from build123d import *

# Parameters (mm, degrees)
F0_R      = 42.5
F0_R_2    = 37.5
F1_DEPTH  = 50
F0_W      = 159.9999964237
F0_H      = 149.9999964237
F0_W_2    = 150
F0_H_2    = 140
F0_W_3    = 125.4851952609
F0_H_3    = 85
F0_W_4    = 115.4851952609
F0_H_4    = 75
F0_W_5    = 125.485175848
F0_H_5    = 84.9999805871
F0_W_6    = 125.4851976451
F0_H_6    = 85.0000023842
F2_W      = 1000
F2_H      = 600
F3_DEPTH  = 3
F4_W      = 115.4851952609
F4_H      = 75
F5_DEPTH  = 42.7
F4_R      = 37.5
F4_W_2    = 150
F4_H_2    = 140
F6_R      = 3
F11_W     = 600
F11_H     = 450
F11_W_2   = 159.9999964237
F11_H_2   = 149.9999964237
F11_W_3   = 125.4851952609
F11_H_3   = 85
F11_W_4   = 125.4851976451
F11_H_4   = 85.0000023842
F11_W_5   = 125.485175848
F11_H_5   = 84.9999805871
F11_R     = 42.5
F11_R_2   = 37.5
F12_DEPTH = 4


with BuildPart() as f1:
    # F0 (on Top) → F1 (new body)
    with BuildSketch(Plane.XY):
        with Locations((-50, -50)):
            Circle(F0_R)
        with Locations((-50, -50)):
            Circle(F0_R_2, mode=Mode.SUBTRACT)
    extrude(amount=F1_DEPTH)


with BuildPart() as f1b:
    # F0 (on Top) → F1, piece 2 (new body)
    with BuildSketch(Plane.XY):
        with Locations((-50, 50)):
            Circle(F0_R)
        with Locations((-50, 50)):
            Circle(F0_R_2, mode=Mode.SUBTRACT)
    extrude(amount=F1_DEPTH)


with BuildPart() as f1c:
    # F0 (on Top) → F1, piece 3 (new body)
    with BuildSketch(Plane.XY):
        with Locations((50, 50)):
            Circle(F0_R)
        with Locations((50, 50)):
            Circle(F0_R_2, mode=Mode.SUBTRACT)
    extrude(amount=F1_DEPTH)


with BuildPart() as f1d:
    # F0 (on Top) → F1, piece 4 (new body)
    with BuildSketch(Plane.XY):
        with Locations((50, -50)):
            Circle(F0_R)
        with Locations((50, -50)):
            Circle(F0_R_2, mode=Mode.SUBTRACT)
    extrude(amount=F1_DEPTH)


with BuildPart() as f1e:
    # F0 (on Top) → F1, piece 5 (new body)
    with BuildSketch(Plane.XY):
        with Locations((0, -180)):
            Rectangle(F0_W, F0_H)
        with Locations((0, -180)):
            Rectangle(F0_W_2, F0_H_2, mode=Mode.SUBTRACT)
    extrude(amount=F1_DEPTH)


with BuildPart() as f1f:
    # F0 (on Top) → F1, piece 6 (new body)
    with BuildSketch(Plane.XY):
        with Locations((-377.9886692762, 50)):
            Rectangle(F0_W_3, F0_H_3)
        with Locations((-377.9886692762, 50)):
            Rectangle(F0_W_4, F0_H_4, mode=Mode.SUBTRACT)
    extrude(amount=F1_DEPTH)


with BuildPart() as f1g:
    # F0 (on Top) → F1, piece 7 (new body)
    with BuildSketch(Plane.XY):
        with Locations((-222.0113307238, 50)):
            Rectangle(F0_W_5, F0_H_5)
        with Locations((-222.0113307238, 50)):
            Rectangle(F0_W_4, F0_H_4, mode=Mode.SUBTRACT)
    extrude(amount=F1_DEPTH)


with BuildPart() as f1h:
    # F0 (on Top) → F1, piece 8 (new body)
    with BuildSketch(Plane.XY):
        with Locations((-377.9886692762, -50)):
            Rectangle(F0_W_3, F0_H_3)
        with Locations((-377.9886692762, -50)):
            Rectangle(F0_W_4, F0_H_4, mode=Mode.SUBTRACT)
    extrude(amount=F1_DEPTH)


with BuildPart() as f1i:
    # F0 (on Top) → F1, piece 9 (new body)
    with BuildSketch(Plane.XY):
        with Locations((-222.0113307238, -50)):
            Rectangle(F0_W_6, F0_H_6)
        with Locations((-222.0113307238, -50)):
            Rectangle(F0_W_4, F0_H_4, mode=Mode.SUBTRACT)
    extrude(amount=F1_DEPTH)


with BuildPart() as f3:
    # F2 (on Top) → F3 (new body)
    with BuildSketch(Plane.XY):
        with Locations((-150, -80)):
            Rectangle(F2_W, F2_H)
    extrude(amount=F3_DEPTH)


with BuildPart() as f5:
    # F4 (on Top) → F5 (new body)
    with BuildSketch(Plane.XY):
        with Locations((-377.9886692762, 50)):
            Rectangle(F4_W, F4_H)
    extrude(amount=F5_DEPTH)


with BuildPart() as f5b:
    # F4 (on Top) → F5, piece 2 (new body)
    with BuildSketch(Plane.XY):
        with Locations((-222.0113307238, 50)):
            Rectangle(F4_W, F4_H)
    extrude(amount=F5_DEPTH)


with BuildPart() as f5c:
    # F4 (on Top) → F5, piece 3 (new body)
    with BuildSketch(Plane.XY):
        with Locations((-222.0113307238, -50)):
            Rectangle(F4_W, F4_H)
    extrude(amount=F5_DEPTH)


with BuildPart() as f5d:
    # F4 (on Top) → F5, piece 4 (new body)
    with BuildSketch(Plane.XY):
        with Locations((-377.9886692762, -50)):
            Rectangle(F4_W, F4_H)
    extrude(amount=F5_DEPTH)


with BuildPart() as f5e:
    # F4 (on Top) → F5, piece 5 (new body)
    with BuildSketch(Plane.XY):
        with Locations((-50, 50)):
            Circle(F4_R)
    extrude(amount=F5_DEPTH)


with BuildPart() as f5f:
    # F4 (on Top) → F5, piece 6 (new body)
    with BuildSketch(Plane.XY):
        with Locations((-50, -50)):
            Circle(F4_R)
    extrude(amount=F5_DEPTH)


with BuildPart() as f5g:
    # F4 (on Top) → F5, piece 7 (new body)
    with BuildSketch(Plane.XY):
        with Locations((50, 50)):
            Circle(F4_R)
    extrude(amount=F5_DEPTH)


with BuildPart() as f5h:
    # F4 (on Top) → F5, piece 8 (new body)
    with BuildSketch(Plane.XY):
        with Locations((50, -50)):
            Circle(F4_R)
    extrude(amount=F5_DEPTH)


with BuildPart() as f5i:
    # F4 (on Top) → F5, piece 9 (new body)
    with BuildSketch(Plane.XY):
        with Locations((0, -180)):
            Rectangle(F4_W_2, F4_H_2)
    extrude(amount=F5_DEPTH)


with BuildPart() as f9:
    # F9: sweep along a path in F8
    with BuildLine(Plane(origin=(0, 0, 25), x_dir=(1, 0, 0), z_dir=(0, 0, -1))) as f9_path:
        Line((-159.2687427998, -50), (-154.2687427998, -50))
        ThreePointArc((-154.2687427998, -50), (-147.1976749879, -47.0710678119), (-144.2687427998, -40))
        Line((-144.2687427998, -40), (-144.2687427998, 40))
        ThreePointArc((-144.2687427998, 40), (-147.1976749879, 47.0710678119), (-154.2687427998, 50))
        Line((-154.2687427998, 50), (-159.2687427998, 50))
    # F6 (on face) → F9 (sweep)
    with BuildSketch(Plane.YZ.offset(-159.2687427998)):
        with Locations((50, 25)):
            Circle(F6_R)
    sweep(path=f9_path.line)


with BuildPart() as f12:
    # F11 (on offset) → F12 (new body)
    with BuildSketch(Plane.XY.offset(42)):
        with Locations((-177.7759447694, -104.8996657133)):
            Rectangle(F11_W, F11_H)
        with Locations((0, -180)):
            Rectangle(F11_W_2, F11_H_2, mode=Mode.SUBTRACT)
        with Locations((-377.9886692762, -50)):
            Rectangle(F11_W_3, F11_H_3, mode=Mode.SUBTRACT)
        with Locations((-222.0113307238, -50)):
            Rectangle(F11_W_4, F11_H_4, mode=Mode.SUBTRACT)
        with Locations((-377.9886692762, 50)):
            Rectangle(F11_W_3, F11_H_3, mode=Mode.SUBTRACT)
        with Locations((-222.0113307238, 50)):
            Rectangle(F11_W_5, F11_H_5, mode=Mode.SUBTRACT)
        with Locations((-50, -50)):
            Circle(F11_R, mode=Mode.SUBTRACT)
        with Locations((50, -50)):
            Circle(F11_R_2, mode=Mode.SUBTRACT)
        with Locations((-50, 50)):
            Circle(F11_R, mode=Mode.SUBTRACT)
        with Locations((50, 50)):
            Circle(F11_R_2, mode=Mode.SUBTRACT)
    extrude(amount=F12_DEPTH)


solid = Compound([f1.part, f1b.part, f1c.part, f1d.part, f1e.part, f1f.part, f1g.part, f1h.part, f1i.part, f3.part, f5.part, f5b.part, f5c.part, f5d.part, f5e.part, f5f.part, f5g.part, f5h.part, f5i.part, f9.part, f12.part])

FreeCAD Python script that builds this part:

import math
import FreeCAD as App
import Part
import Sketcher
from FreeCAD import Vector
Q = App.Units.Quantity

doc = App.newDocument("Part")
body = doc.addObject("PartDesign::Body", "Body")

# Sketch on XY plane
sketch1 = doc.addObject("Sketcher::SketchObject", "Sketch")
body.addObject(sketch1)
sketch1.AttachmentSupport = (doc.XY_Plane, [""])
sketch1.MapMode = "FlatFace"
sketch1.addGeometry(Part.Circle(Vector(-50, -50, 0), Vector(0, 0, 1), 42.5), False)
sketch1.addGeometry(Part.Circle(Vector(-50, -50, 0), Vector(0, 0, 1), 37.5), False)
sketch1.addConstraint(Sketcher.Constraint("Coincident", 1, 3, 0, 3))
sketch1.addConstraint(Sketcher.Constraint("Diameter", 0, Q("85 mm")))
sketch1.addConstraint(Sketcher.Constraint("Diameter", 1, Q("75 mm")))
sketch1.addConstraint(Sketcher.Constraint("DistanceX", 0, 3, -1, 1, Q("50 mm")))
sketch1.addConstraint(Sketcher.Constraint("DistanceY", 0, 3, -1, 1, Q("50 mm")))
pad1 = doc.addObject("PartDesign::Pad", "Pad")
body.addObject(pad1)
pad1.Profile = sketch1
pad1.Length = 50
body2 = doc.addObject("PartDesign::Body", "Body001")

# Sketch on XY plane
sketch2 = doc.addObject("Sketcher::SketchObject", "Sketch001")
body2.addObject(sketch2)
sketch2.AttachmentSupport = (doc.getObject("XY_Plane001"), [""])
sketch2.MapMode = "FlatFace"
sketch2.addGeometry(Part.Circle(Vector(-50, 50, 0), Vector(0, 0, 1), 42.5), False)
sketch2.addGeometry(Part.Circle(Vector(-50, 50, 0), Vector(0, 0, 1), 37.5), False)
sketch2.addConstraint(Sketcher.Constraint("Coincident", 1, 3, 0, 3))
sketch2.addConstraint(Sketcher.Constraint("Diameter", 0, Q("85 mm")))
sketch2.addConstraint(Sketcher.Constraint("Diameter", 1, Q("75 mm")))
sketch2.addConstraint(Sketcher.Constraint("DistanceX", 0, 3, -1, 1, Q("50 mm")))
sketch2.addConstraint(Sketcher.Constraint("DistanceY", -1, 1, 0, 3, Q("50 mm")))
pad2 = doc.addObject("PartDesign::Pad", "Pad001")
body2.addObject(pad2)
pad2.Profile = sketch2
pad2.Length = 50
body3 = doc.addObject("PartDesign::Body", "Body002")

# Sketch on XY plane
sketch3 = doc.addObject("Sketcher::SketchObject", "Sketch002")
body3.addObject(sketch3)
sketch3.AttachmentSupport = (doc.getObject("XY_Plane002"), [""])
sketch3.MapMode = "FlatFace"
sketch3.addGeometry(Part.Circle(Vector(50, 50, 0), Vector(0, 0, 1), 42.5), False)
sketch3.addGeometry(Part.Circle(Vector(50, 50, 0), Vector(0, 0, 1), 37.5), False)
sketch3.addConstraint(Sketcher.Constraint("Coincident", 1, 3, 0, 3))
sketch3.addConstraint(Sketcher.Constraint("Diameter", 0, Q("85 mm")))
sketch3.addConstraint(Sketcher.Constraint("Diameter", 1, Q("75 mm")))
sketch3.addConstraint(Sketcher.Constraint("DistanceX", -1, 1, 0, 3, Q("50 mm")))
sketch3.addConstraint(Sketcher.Constraint("DistanceY", -1, 1, 0, 3, Q("50 mm")))
pad3 = doc.addObject("PartDesign::Pad", "Pad002")
body3.addObject(pad3)
pad3.Profile = sketch3
pad3.Length = 50
body4 = doc.addObject("PartDesign::Body", "Body003")

# Sketch on XY plane
sketch4 = doc.addObject("Sketcher::SketchObject", "Sketch003")
body4.addObject(sketch4)
sketch4.AttachmentSupport = (doc.getObject("XY_Plane003"), [""])
sketch4.MapMode = "FlatFace"
sketch4.addGeometry(Part.Circle(Vector(50, -50, 0), Vector(0, 0, 1), 42.5), False)
sketch4.addGeometry(Part.Circle(Vector(50, -50, 0), Vector(0, 0, 1), 37.5), False)
sketch4.addConstraint(Sketcher.Constraint("Coincident", 1, 3, 0, 3))
sketch4.addConstraint(Sketcher.Constraint("Diameter", 0, Q("85 mm")))
sketch4.addConstraint(Sketcher.Constraint("Diameter", 1, Q("75 mm")))
sketch4.addConstraint(Sketcher.Constraint("DistanceX", -1, 1, 0, 3, Q("50 mm")))
sketch4.addConstraint(Sketcher.Constraint("DistanceY", 0, 3, -1, 1, Q("50 mm")))
pad4 = doc.addObject("PartDesign::Pad", "Pad003")
body4.addObject(pad4)
pad4.Profile = sketch4
pad4.Length = 50
body5 = doc.addObject("PartDesign::Body", "Body004")

# Sketch on XY plane
sketch5 = doc.addObject("Sketcher::SketchObject", "Sketch004")
body5.addObject(sketch5)
sketch5.AttachmentSupport = (doc.getObject("XY_Plane004"), [""])
sketch5.MapMode = "FlatFace"
sketch5.addGeometry(Part.LineSegment(Vector(-79.999998, -105.000002, 0), Vector(-79.999998, -254.999998, 0)), False)
sketch5.addGeometry(Part.LineSegment(Vector(-79.999998, -254.999998, 0), Vector(79.999998, -254.999998, 0)), False)
sketch5.addGeometry(Part.LineSegment(Vector(79.999998, -254.999998, 0), Vector(79.999998, -105.000002, 0)), False)
sketch5.addGeometry(Part.LineSegment(Vector(79.999998, -105.000002, 0), Vector(-79.999998, -105.000002, 0)), False)
sketch5.addGeometry(Part.LineSegment(Vector(75, -250, 0), Vector(-75, -250, 0)), False)
sketch5.addGeometry(Part.LineSegment(Vector(-75, -250, 0), Vector(-75, -110, 0)), False)
sketch5.addGeometry(Part.LineSegment(Vector(-75, -110, 0), Vector(75, -110, 0)), False)
sketch5.addGeometry(Part.LineSegment(Vector(75, -110, 0), Vector(75, -250, 0)), False)
sketch5.addConstraint(Sketcher.Constraint("Coincident", 0, 2, 1, 1))
sketch5.addConstraint(Sketcher.Constraint("Coincident", 1, 2, 2, 1))
sketch5.addConstraint(Sketcher.Constraint("Coincident", 2, 2, 3, 1))
sketch5.addConstraint(Sketcher.Constraint("Coincident", 3, 2, 0, 1))
sketch5.addConstraint(Sketcher.Constraint("Coincident", 4, 2, 5, 1))
sketch5.addConstraint(Sketcher.Constraint("Coincident", 5, 2, 6, 1))
sketch5.addConstraint(Sketcher.Constraint("Coincident", 6, 2, 7, 1))
sketch5.addConstraint(Sketcher.Constraint("Coincident", 7, 2, 4, 1))
sketch5.addConstraint(Sketcher.Constraint("Vertical", 0))
sketch5.addConstraint(Sketcher.Constraint("Horizontal", 1))
sketch5.addConstraint(Sketcher.Constraint("Vertical", 2))
sketch5.addConstraint(Sketcher.Constraint("Horizontal", 3))
sketch5.addConstraint(Sketcher.Constraint("Horizontal", 4))
sketch5.addConstraint(Sketcher.Constraint("Vertical", 5))
sketch5.addConstraint(Sketcher.Constraint("Horizontal", 6))
sketch5.addConstraint(Sketcher.Constraint("Vertical", 7))
sketch5.addConstraint(Sketcher.Constraint("DistanceX", 4, 2, 4, 1, Q("150 mm")))
sketch5.addConstraint(Sketcher.Constraint("DistanceY", 5, 1, 5, 2, Q("140 mm")))
sketch5.addConstraint(Sketcher.Constraint("DistanceX", 0, 2, -1, 1, Q("79.999998 mm")))
sketch5.addConstraint(Sketcher.Constraint("DistanceY", 0, 2, -1, 1, Q("254.999998 mm")))
sketch5.addConstraint(Sketcher.Constraint("DistanceX", -1, 1, 1, 2, Q("79.999998 mm")))
sketch5.addConstraint(Sketcher.Constraint("DistanceY", 2, 2, -1, 1, Q("105.000002 mm")))
sketch5.addConstraint(Sketcher.Constraint("DistanceX", 4, 2, -1, 1, Q("75 mm")))
sketch5.addConstraint(Sketcher.Constraint("DistanceY", 4, 2, -1, 1, Q("250 mm")))
pad5 = doc.addObject("PartDesign::Pad", "Pad004")
body5.addObject(pad5)
pad5.Profile = sketch5
pad5.Length = 50
body6 = doc.addObject("PartDesign::Body", "Body005")

# Sketch on XY plane
sketch6 = doc.addObject("Sketcher::SketchObject", "Sketch005")
body6.addObject(sketch6)
sketch6.AttachmentSupport = (doc.getObject("XY_Plane005"), [""])
sketch6.MapMode = "FlatFace"
sketch6.addGeometry(Part.LineSegment(Vector(-440.731267, 92.5, 0), Vector(-440.731267, 7.5, 0)), False)
sketch6.addGeometry(Part.LineSegment(Vector(-440.731267, 7.5, 0), Vector(-315.246072, 7.5, 0)), False)
sketch6.addGeometry(Part.LineSegment(Vector(-315.246072, 7.5, 0), Vector(-315.246072, 92.5, 0)), False)
sketch6.addGeometry(Part.LineSegment(Vector(-315.246072, 92.5, 0), Vector(-440.731267, 92.5, 0)), False)
sketch6.addGeometry(Part.LineSegment(Vector(-320.246072, 12.5, 0), Vector(-435.731267, 12.5, 0)), False)
sketch6.addGeometry(Part.LineSegment(Vector(-435.731267, 12.5, 0), Vector(-435.731267, 87.5, 0)), False)
sketch6.addGeometry(Part.LineSegment(Vector(-435.731267, 87.5, 0), Vector(-320.246072, 87.5, 0)), False)
sketch6.addGeometry(Part.LineSegment(Vector(-320.246072, 87.5, 0), Vector(-320.246072, 12.5, 0)), False)
sketch6.addConstraint(Sketcher.Constraint("Coincident", 0, 2, 1, 1))
sketch6.addConstraint(Sketcher.Constraint("Coincident", 1, 2, 2, 1))
sketch6.addConstraint(Sketcher.Constraint("Coincident", 2, 2, 3, 1))
sketch6.addConstraint(Sketcher.Constraint("Coincident", 3, 2, 0, 1))
sketch6.addConstraint(Sketcher.Constraint("Coincident", 4, 2, 5, 1))
sketch6.addConstraint(Sketcher.Constraint("Coincident", 5, 2, 6, 1))
sketch6.addConstraint(Sketcher.Constraint("Coincident", 6, 2, 7, 1))
sketch6.addConstraint(Sketcher.Constraint("Coincident", 7, 2, 4, 1))
sketch6.addConstraint(Sketcher.Constraint("Vertical", 0))
sketch6.addConstraint(Sketcher.Constraint("Horizontal", 1))
sketch6.addConstraint(Sketcher.Constraint("Vertical", 2))
sketch6.addConstraint(Sketcher.Constraint("Horizontal", 3))
sketch6.addConstraint(Sketcher.Constraint("Horizontal", 4))
sketch6.addConstraint(Sketcher.Constraint("Vertical", 5))
sketch6.addConstraint(Sketcher.Constraint("Horizontal", 6))
sketch6.addConstraint(Sketcher.Constraint("Vertical", 7))
sketch6.addConstraint(Sketcher.Constraint("DistanceY", 0, 2, 0, 1, Q("85 mm")))
sketch6.addConstraint(Sketcher.Constraint("DistanceY", 5, 1, 5, 2, Q("75 mm")))
sketch6.addConstraint(Sketcher.Constraint("DistanceX", 0, 2, 4, 2, Q("5 mm")))
sketch6.addConstraint(Sketcher.Constraint("DistanceY", 0, 2, 4, 2, Q("5 mm")))
sketch6.addConstraint(Sketcher.Constraint("DistanceX", 6, 2, 2, 2, Q("5 mm")))
sketch6.addConstraint(Sketcher.Constraint("DistanceY", -1, 1, 0, 2, Q("7.5 mm")))
sketch6.addConstraint(Sketcher.Constraint("DistanceX", 1, 1, 1, 2, Q("125.485195 mm")))
sketch6.addConstraint(Sketcher.Constraint("DistanceX", 1, 2, -1, 1, Q("315.246072 mm")))
pad6 = doc.addObject("PartDesign::Pad", "Pad005")
body6.addObject(pad6)
pad6.Profile = sketch6
pad6.Length = 50
body7 = doc.addObject("PartDesign::Body", "Body006")

# Sketch on XY plane
sketch7 = doc.addObject("Sketcher::SketchObject", "Sketch006")
body7.addObject(sketch7)
sketch7.AttachmentSupport = (doc.getObject("XY_Plane006"), [""])
sketch7.MapMode = "FlatFace"
sketch7.addGeometry(Part.LineSegment(Vector(-284.753919, 92.49999, 0), Vector(-284.753919, 7.50001, 0)), False)
sketch7.addGeometry(Part.LineSegment(Vector(-284.753919, 7.50001, 0), Vector(-159.268743, 7.50001, 0)), False)
sketch7.addGeometry(Part.LineSegment(Vector(-159.268743, 7.50001, 0), Vector(-159.268743, 92.49999, 0)), False)
sketch7.addGeometry(Part.LineSegment(Vector(-159.268743, 92.49999, 0), Vector(-284.753919, 92.49999, 0)), False)
sketch7.addGeometry(Part.LineSegment(Vector(-164.268733, 12.5, 0), Vector(-279.753928, 12.5, 0)), False)
sketch7.addGeometry(Part.LineSegment(Vector(-279.753928, 12.5, 0), Vector(-279.753928, 87.5, 0)), False)
sketch7.addGeometry(Part.LineSegment(Vector(-279.753928, 87.5, 0), Vector(-164.268733, 87.5, 0)), False)
sketch7.addGeometry(Part.LineSegment(Vector(-164.268733, 87.5, 0), Vector(-164.268733, 12.5, 0)), False)
sketch7.addConstraint(Sketcher.Constraint("Coincident", 0, 2, 1, 1))
sketch7.addConstraint(Sketcher.Constraint("Coincident", 1, 2, 2, 1))
sketch7.addConstraint(Sketcher.Constraint("Coincident", 2, 2, 3, 1))
sketch7.addConstraint(Sketcher.Constraint("Coincident", 3, 2, 0, 1))
sketch7.addConstraint(Sketcher.Constraint("Coincident", 4, 2, 5, 1))
sketch7.addConstraint(Sketcher.Constraint("Coincident", 5, 2, 6, 1))
sketch7.addConstraint(Sketcher.Constraint("Coincident", 6, 2, 7, 1))
sketch7.addConstraint(Sketcher.Constraint("Coincident", 7, 2, 4, 1))
sketch7.addConstraint(Sketcher.Constraint("Vertical", 0))
sketch7.addConstraint(Sketcher.Constraint("Horizontal", 1))
sketch7.addConstraint(Sketcher.Constraint("Vertical", 2))
sketch7.addConstraint(Sketcher.Constraint("Horizontal", 3))
sketch7.addConstraint(Sketcher.Constraint("Horizontal", 4))
sketch7.addConstraint(Sketcher.Constraint("Vertical", 5))
sketch7.addConstraint(Sketcher.Constraint("Horizontal", 6))
sketch7.addConstraint(Sketcher.Constraint("Vertical", 7))
sketch7.addConstraint(Sketcher.Constraint("DistanceY", 5, 1, 5, 2, Q("75 mm")))
sketch7.addConstraint(Sketcher.Constraint("DistanceY", -1, 1, 4, 2, Q("12.5 mm")))
sketch7.addConstraint(Sketcher.Constraint("DistanceY", 0, 2, 0, 1, Q("84.999981 mm")))
sketch7.addConstraint(Sketcher.Constraint("DistanceX", 1, 1, 1, 2, Q("125.485176 mm")))
sketch7.addConstraint(Sketcher.Constraint("DistanceX", 4, 2, 4, 1, Q("115.485195 mm")))
sketch7.addConstraint(Sketcher.Constraint("DistanceX", 0, 2, -1, 1, Q("284.753919 mm")))
sketch7.addConstraint(Sketcher.Constraint("DistanceY", -1, 1, 0, 2, Q("7.50001 mm")))
sketch7.addConstraint(Sketcher.Constraint("DistanceX", 4, 2, -1, 1, Q("279.753928 mm")))
pad7 = doc.addObject("PartDesign::Pad", "Pad006")
body7.addObject(pad7)
pad7.Profile = sketch7
pad7.Length = 50
body8 = doc.addObject("PartDesign::Body", "Body007")

# Sketch on XY plane
sketch8 = doc.addObject("Sketcher::SketchObject", "Sketch007")
body8.addObject(sketch8)
sketch8.AttachmentSupport = (doc.getObject("XY_Plane007"), [""])
sketch8.MapMode = "FlatFace"
sketch8.addGeometry(Part.LineSegment(Vector(-440.731267, -7.5, 0), Vector(-440.731267, -92.5, 0)), False)
sketch8.addGeometry(Part.LineSegment(Vector(-440.731267, -92.5, 0), Vector(-315.246072, -92.5, 0)), False)
sketch8.addGeometry(Part.LineSegment(Vector(-315.246072, -92.5, 0), Vector(-315.246072, -7.5, 0)), False)
sketch8.addGeometry(Part.LineSegment(Vector(-315.246072, -7.5, 0), Vector(-440.731267, -7.5, 0)), False)
sketch8.addGeometry(Part.LineSegment(Vector(-320.246072, -87.5, 0), Vector(-435.731267, -87.5, 0)), False)
sketch8.addGeometry(Part.LineSegment(Vector(-435.731267, -87.5, 0), Vector(-435.731267, -12.5, 0)), False)
sketch8.addGeometry(Part.LineSegment(Vector(-435.731267, -12.5, 0), Vector(-320.246072, -12.5, 0)), False)
sketch8.addGeometry(Part.LineSegment(Vector(-320.246072, -12.5, 0), Vector(-320.246072, -87.5, 0)), False)
sketch8.addConstraint(Sketcher.Constraint("Coincident", 0, 2, 1, 1))
sketch8.addConstraint(Sketcher.Constraint("Coincident", 1, 2, 2, 1))
sketch8.addConstraint(Sketcher.Constraint("Coincident", 2, 2, 3, 1))
sketch8.addConstraint(Sketcher.Constraint("Coincident", 3, 2, 0, 1))
sketch8.addConstraint(Sketcher.Constraint("Coincident", 4, 2, 5, 1))
sketch8.addConstraint(Sketcher.Constraint("Coincident", 5, 2, 6, 1))
sketch8.addConstraint(Sketcher.Constraint("Coincident", 6, 2, 7, 1))
sketch8.addConstraint(Sketcher.Constraint("Coincident", 7, 2, 4, 1))
sketch8.addConstraint(Sketcher.Constraint("Vertical", 0))
sketch8.addConstraint(Sketcher.Constraint("Horizontal", 1))
sketch8.addConstraint(Sketcher.Constraint("Vertical", 2))
sketch8.addConstraint(Sketcher.Constraint("Horizontal", 3))
sketch8.addConstraint(Sketcher.Constraint("Horizontal", 4))
sketch8.addConstraint(Sketcher.Constraint("Vertical", 5))
sketch8.addConstraint(Sketcher.Constraint("Horizontal", 6))
sketch8.addConstraint(Sketcher.Constraint("Vertical", 7))
sketch8.addConstraint(Sketcher.Constraint("DistanceY", 0, 2, 0, 1, Q("85 mm")))
sketch8.addConstraint(Sketcher.Constraint("DistanceY", 5, 1, 5, 2, Q("75 mm")))
sketch8.addConstraint(Sketcher.Constraint("DistanceX", 0, 2, 4, 2, Q("5 mm")))
sketch8.addConstraint(Sketcher.Constraint("DistanceY", 0, 2, 4, 2, Q("5 mm")))
sketch8.addConstraint(Sketcher.Constraint("DistanceX", 6, 2, 2, 2, Q("5 mm")))
sketch8.addConstraint(Sketcher.Constraint("DistanceY", 0, 2, -1, 1, Q("92.5 mm")))
sketch8.addConstraint(Sketcher.Constraint("DistanceX", 1, 1, 1, 2, Q("125.485195 mm")))
sketch8.addConstraint(Sketcher.Constraint("DistanceX", 1, 2, -1, 1, Q("315.246072 mm")))
pad8 = doc.addObject("PartDesign::Pad", "Pad007")
body8.addObject(pad8)
pad8.Profile = sketch8
pad8.Length = 50
body9 = doc.addObject("PartDesign::Body", "Body008")

# Sketch on XY plane
sketch9 = doc.addObject("Sketcher::SketchObject", "Sketch008")
body9.addObject(sketch9)
sketch9.AttachmentSupport = (doc.getObject("XY_Plane008"), [""])
sketch9.MapMode = "FlatFace"
sketch9.addGeometry(Part.LineSegment(Vector(-284.75393, -7.499999, 0), Vector(-284.75393, -92.500001, 0)), False)
sketch9.addGeometry(Part.LineSegment(Vector(-284.75393, -92.500001, 0), Vector(-159.268732, -92.500001, 0)), False)
sketch9.addGeometry(Part.LineSegment(Vector(-159.268732, -92.500001, 0), Vector(-159.268732, -7.499999, 0)), False)
sketch9.addGeometry(Part.LineSegment(Vector(-159.268732, -7.499999, 0), Vector(-284.75393, -7.499999, 0)), False)
sketch9.addGeometry(Part.LineSegment(Vector(-164.268733, -87.5, 0), Vector(-279.753928, -87.5, 0)), False)
sketch9.addGeometry(Part.LineSegment(Vector(-279.753928, -87.5, 0), Vector(-279.753928, -12.5, 0)), False)
sketch9.addGeometry(Part.LineSegment(Vector(-279.753928, -12.5, 0), Vector(-164.268733, -12.5, 0)), False)
sketch9.addGeometry(Part.LineSegment(Vector(-164.268733, -12.5, 0), Vector(-164.268733, -87.5, 0)), False)
sketch9.addConstraint(Sketcher.Constraint("Coincident", 0, 2, 1, 1))
sketch9.addConstraint(Sketcher.Constraint("Coincident", 1, 2, 2, 1))
sketch9.addConstraint(Sketcher.Constraint("Coincident", 2, 2, 3, 1))
sketch9.addConstraint(Sketcher.Constraint("Coincident", 3, 2, 0, 1))
sketch9.addConstraint(Sketcher.Constraint("Coincident", 4, 2, 5, 1))
sketch9.addConstraint(Sketcher.Constraint("Coincident", 5, 2, 6, 1))
sketch9.addConstraint(Sketcher.Constraint("Coincident", 6, 2, 7, 1))
sketch9.addConstraint(Sketcher.Constraint("Coincident", 7, 2, 4, 1))
sketch9.addConstraint(Sketcher.Constraint("Vertical", 0))
sketch9.addConstraint(Sketcher.Constraint("Horizontal", 1))
sketch9.addConstraint(Sketcher.Constraint("Vertical", 2))
sketch9.addConstraint(Sketcher.Constraint("Horizontal", 3))
sketch9.addConstraint(Sketcher.Constraint("Horizontal", 4))
sketch9.addConstraint(Sketcher.Constraint("Vertical", 5))
sketch9.addConstraint(Sketcher.Constraint("Horizontal", 6))
sketch9.addConstraint(Sketcher.Constraint("Vertical", 7))
sketch9.addConstraint(Sketcher.Constraint("DistanceY", 5, 1, 5, 2, Q("75 mm")))
sketch9.addConstraint(Sketcher.Constraint("DistanceX", 0, 2, 4, 2, Q("5.000001 mm")))
sketch9.addConstraint(Sketcher.Constraint("DistanceY", 0, 2, 4, 2, Q("5.000001 mm")))
sketch9.addConstraint(Sketcher.Constraint("DistanceY", 4, 2, 3, 2, Q("80.000001 mm")))
sketch9.addConstraint(Sketcher.Constraint("DistanceX", 6, 2, 2, 2, Q("5.000001 mm")))
sketch9.addConstraint(Sketcher.Constraint("DistanceY", 0, 2, -1, 1, Q("92.500001 mm")))
sketch9.addConstraint(Sketcher.Constraint("DistanceX", 1, 1, 1, 2, Q("125.485198 mm")))
sketch9.addConstraint(Sketcher.Constraint("DistanceX", 0, 2, -1, 1, Q("284.75393 mm")))
pad9 = doc.addObject("PartDesign::Pad", "Pad008")
body9.addObject(pad9)
pad9.Profile = sketch9
pad9.Length = 50
body10 = doc.addObject("PartDesign::Body", "Body009")

# Sketch on XY plane
sketch10 = doc.addObject("Sketcher::SketchObject", "Sketch009")
body10.addObject(sketch10)
sketch10.AttachmentSupport = (doc.getObject("XY_Plane009"), [""])
sketch10.MapMode = "FlatFace"
sketch10.addGeometry(Part.LineSegment(Vector(-650, 220, 0), Vector(-650, -380, 0)), False)
sketch10.addGeometry(Part.LineSegment(Vector(-650, -380, 0), Vector(350, -380, 0)), False)
sketch10.addGeometry(Part.LineSegment(Vector(350, -380, 0), Vector(350, 220, 0)), False)
sketch10.addGeometry(Part.LineSegment(Vector(350, 220, 0), Vector(-650, 220, 0)), False)
sketch10.addConstraint(Sketcher.Constraint("Coincident", 0, 2, 1, 1))
sketch10.addConstraint(Sketcher.Constraint("Coincident", 1, 2, 2, 1))
sketch10.addConstraint(Sketcher.Constraint("Coincident", 2, 2, 3, 1))
sketch10.addConstraint(Sketcher.Constraint("Coincident", 3, 2, 0, 1))
sketch10.addConstraint(Sketcher.Constraint("Vertical", 0))
sketch10.addConstraint(Sketcher.Constraint("Horizontal", 1))
sketch10.addConstraint(Sketcher.Constraint("Vertical", 2))
sketch10.addConstraint(Sketcher.Constraint("Horizontal", 3))
sketch10.addConstraint(Sketcher.Constraint("DistanceX", 1, 1, 1, 2, Q("1000 mm")))
sketch10.addConstraint(Sketcher.Constraint("DistanceY", 0, 2, 0, 1, Q("600 mm")))
sketch10.addConstraint(Sketcher.Constraint("DistanceX", 0, 2, -1, 1, Q("650 mm")))
sketch10.addConstraint(Sketcher.Constraint("DistanceY", 0, 2, -1, 1, Q("380 mm")))
pad10 = doc.addObject("PartDesign::Pad", "Pad009")
body10.addObject(pad10)
pad10.Profile = sketch10
pad10.Length = 3
body11 = doc.addObject("PartDesign::Body", "Body010")

# Sketch on XY plane
sketch11 = doc.addObject("Sketcher::SketchObject", "Sketch010")
body11.addObject(sketch11)
sketch11.AttachmentSupport = (doc.getObject("XY_Plane010"), [""])
sketch11.MapMode = "FlatFace"
sketch11.addGeometry(Part.LineSegment(Vector(-435.731267, 87.5, 0), Vector(-435.731267, 12.5, 0)), False)
sketch11.addGeometry(Part.LineSegment(Vector(-435.731267, 12.5, 0), Vector(-320.246072, 12.5, 0)), False)
sketch11.addGeometry(Part.LineSegment(Vector(-320.246072, 12.5, 0), Vector(-320.246072, 87.5, 0)), False)
sketch11.addGeometry(Part.LineSegment(Vector(-320.246072, 87.5, 0), Vector(-435.731267, 87.5, 0)), False)
sketch11.addConstraint(Sketcher.Constraint("Coincident", 0, 2, 1, 1))
sketch11.addConstraint(Sketcher.Constraint("Coincident", 1, 2, 2, 1))
sketch11.addConstraint(Sketcher.Constraint("Coincident", 2, 2, 3, 1))
sketch11.addConstraint(Sketcher.Constraint("Coincident", 3, 2, 0, 1))
sketch11.addConstraint(Sketcher.Constraint("Vertical", 0))
sketch11.addConstraint(Sketcher.Constraint("Horizontal", 1))
sketch11.addConstraint(Sketcher.Constraint("Vertical", 2))
sketch11.addConstraint(Sketcher.Constraint("Horizontal", 3))
sketch11.addConstraint(Sketcher.Constraint("DistanceY", 0, 2, 0, 1, Q("75 mm")))
sketch11.addConstraint(Sketcher.Constraint("DistanceY", -1, 1, 0, 2, Q("12.5 mm")))
sketch11.addConstraint(Sketcher.Constraint("DistanceX", 1, 1, 1, 2, Q("115.485195 mm")))
sketch11.addConstraint(Sketcher.Constraint("DistanceX", 1, 2, -1, 1, Q("320.246072 mm")))
pad11 = doc.addObject("PartDesign::Pad", "Pad010")
body11.addObject(pad11)
pad11.Profile = sketch11
pad11.Length = 42.7
body12 = doc.addObject("PartDesign::Body", "Body011")

# Sketch on XY plane
sketch12 = doc.addObject("Sketcher::SketchObject", "Sketch011")
body12.addObject(sketch12)
sketch12.AttachmentSupport = (doc.getObject("XY_Plane011"), [""])
sketch12.MapMode = "FlatFace"
sketch12.addGeometry(Part.LineSegment(Vector(-279.753928, 87.5, 0), Vector(-279.753928, 12.5, 0)), False)
sketch12.addGeometry(Part.LineSegment(Vector(-279.753928, 12.5, 0), Vector(-164.268733, 12.5, 0)), False)
sketch12.addGeometry(Part.LineSegment(Vector(-164.268733, 12.5, 0), Vector(-164.268733, 87.5, 0)), False)
sketch12.addGeometry(Part.LineSegment(Vector(-164.268733, 87.5, 0), Vector(-279.753928, 87.5, 0)), False)
sketch12.addConstraint(Sketcher.Constraint("Coincident", 0, 2, 1, 1))
sketch12.addConstraint(Sketcher.Constraint("Coincident", 1, 2, 2, 1))
sketch12.addConstraint(Sketcher.Constraint("Coincident", 2, 2, 3, 1))
sketch12.addConstraint(Sketcher.Constraint("Coincident", 3, 2, 0, 1))
sketch12.addConstraint(Sketcher.Constraint("Vertical", 0))
sketch12.addConstraint(Sketcher.Constraint("Horizontal", 1))
sketch12.addConstraint(Sketcher.Constraint("Vertical", 2))
sketch12.addConstraint(Sketcher.Constraint("Horizontal", 3))
sketch12.addConstraint(Sketcher.Constraint("DistanceY", 0, 2, 0, 1, Q("75 mm")))
sketch12.addConstraint(Sketcher.Constraint("DistanceY", -1, 1, 0, 2, Q("12.5 mm")))
sketch12.addConstraint(Sketcher.Constraint("DistanceX", 1, 1, 1, 2, Q("115.485195 mm")))
sketch12.addConstraint(Sketcher.Constraint("DistanceX", 0, 2, -1, 1, Q("279.753928 mm")))
pad12 = doc.addObject("PartDesign::Pad", "Pad011")
body12.addObject(pad12)
pad12.Profile = sketch12
pad12.Length = 42.7
body13 = doc.addObject("PartDesign::Body", "Body012")

# Sketch on XY plane
sketch13 = doc.addObject("Sketcher::SketchObject", "Sketch012")
body13.addObject(sketch13)
sketch13.AttachmentSupport = (doc.getObject("XY_Plane012"), [""])
sketch13.MapMode = "FlatFace"
sketch13.addGeometry(Part.LineSegment(Vector(-279.753928, -12.5, 0), Vector(-279.753928, -87.5, 0)), False)
sketch13.addGeometry(Part.LineSegment(Vector(-279.753928, -87.5, 0), Vector(-164.268733, -87.5, 0)), False)
sketch13.addGeometry(Part.LineSegment(Vector(-164.268733, -87.5, 0), Vector(-164.268733, -12.5, 0)), False)
sketch13.addGeometry(Part.LineSegment(Vector(-164.268733, -12.5, 0), Vector(-279.753928, -12.5, 0)), False)
sketch13.addConstraint(Sketcher.Constraint("Coincident", 0, 2, 1, 1))
sketch13.addConstraint(Sketcher.Constraint("Coincident", 1, 2, 2, 1))
sketch13.addConstraint(Sketcher.Constraint("Coincident", 2, 2, 3, 1))
sketch13.addConstraint(Sketcher.Constraint("Coincident", 3, 2, 0, 1))
sketch13.addConstraint(Sketcher.Constraint("Vertical", 0))
sketch13.addConstraint(Sketcher.Constraint("Horizontal", 1))
sketch13.addConstraint(Sketcher.Constraint("Vertical", 2))
sketch13.addConstraint(Sketcher.Constraint("Horizontal", 3))
sketch13.addConstraint(Sketcher.Constraint("DistanceY", 0, 2, 0, 1, Q("75 mm")))
sketch13.addConstraint(Sketcher.Constraint("DistanceY", 0, 2, -1, 1, Q("87.5 mm")))
sketch13.addConstraint(Sketcher.Constraint("DistanceX", 1, 1, 1, 2, Q("115.485195 mm")))
sketch13.addConstraint(Sketcher.Constraint("DistanceX", 0, 2, -1, 1, Q("279.753928 mm")))
pad13 = doc.addObject("PartDesign::Pad", "Pad012")
body13.addObject(pad13)
pad13.Profile = sketch13
pad13.Length = 42.7
body14 = doc.addObject("PartDesign::Body", "Body013")

# Sketch on XY plane
sketch14 = doc.addObject("Sketcher::SketchObject", "Sketch013")
body14.addObject(sketch14)
sketch14.AttachmentSupport = (doc.getObject("XY_Plane013"), [""])
sketch14.MapMode = "FlatFace"
sketch14.addGeometry(Part.LineSegment(Vector(-435.731267, -12.5, 0), Vector(-435.731267, -87.5, 0)), False)
sketch14.addGeometry(Part.LineSegment(Vector(-435.731267, -87.5, 0), Vector(-320.246072, -87.5, 0)), False)
sketch14.addGeometry(Part.LineSegment(Vector(-320.246072, -87.5, 0), Vector(-320.246072, -12.5, 0)), False)
sketch14.addGeometry(Part.LineSegment(Vector(-320.246072, -12.5, 0), Vector(-435.731267, -12.5, 0)), False)
sketch14.addConstraint(Sketcher.Constraint("Coincident", 0, 2, 1, 1))
sketch14.addConstraint(Sketcher.Constraint("Coincident", 1, 2, 2, 1))
sketch14.addConstraint(Sketcher.Constraint("Coincident", 2, 2, 3, 1))
sketch14.addConstraint(Sketcher.Constraint("Coincident", 3, 2, 0, 1))
sketch14.addConstraint(Sketcher.Constraint("Vertical", 0))
sketch14.addConstraint(Sketcher.Constraint("Horizontal", 1))
sketch14.addConstraint(Sketcher.Constraint("Vertical", 2))
sketch14.addConstraint(Sketcher.Constraint("Horizontal", 3))
sketch14.addConstraint(Sketcher.Constraint("DistanceY", 0, 2, 0, 1, Q("75 mm")))
sketch14.addConstraint(Sketcher.Constraint("DistanceY", 0, 2, -1, 1, Q("87.5 mm")))
sketch14.addConstraint(Sketcher.Constraint("DistanceX", 1, 1, 1, 2, Q("115.485195 mm")))
sketch14.addConstraint(Sketcher.Constraint("DistanceX", 1, 2, -1, 1, Q("320.246072 mm")))
pad14 = doc.addObject("PartDesign::Pad", "Pad013")
body14.addObject(pad14)
pad14.Profile = sketch14
pad14.Length = 42.7
body15 = doc.addObject("PartDesign::Body", "Body014")

# Sketch on XY plane
sketch15 = doc.addObject("Sketcher::SketchObject", "Sketch014")
body15.addObject(sketch15)
sketch15.AttachmentSupport = (doc.getObject("XY_Plane014"), [""])
sketch15.MapMode = "FlatFace"
sketch15.addGeometry(Part.Circle(Vector(-50, 50, 0), Vector(0, 0, 1), 37.5), False)
sketch15.addConstraint(Sketcher.Constraint("Diameter", 0, Q("75 mm")))
sketch15.addConstraint(Sketcher.Constraint("DistanceX", 0, 3, -1, 1, Q("50 mm")))
sketch15.addConstraint(Sketcher.Constraint("DistanceY", -1, 1, 0, 3, Q("50 mm")))
pad15 = doc.addObject("PartDesign::Pad", "Pad014")
body15.addObject(pad15)
pad15.Profile = sketch15
pad15.Length = 42.7
body16 = doc.addObject("PartDesign::Body", "Body015")

# Sketch on XY plane
sketch16 = doc.addObject("Sketcher::SketchObject", "Sketch015")
body16.addObject(sketch16)
sketch16.AttachmentSupport = (doc.getObject("XY_Plane015"), [""])
sketch16.MapMode = "FlatFace"
sketch16.addGeometry(Part.Circle(Vector(-50, -50, 0), Vector(0, 0, 1), 37.5), False)
sketch16.addConstraint(Sketcher.Constraint("Diameter", 0, Q("75 mm")))
sketch16.addConstraint(Sketcher.Constraint("DistanceX", 0, 3, -1, 1, Q("50 mm")))
sketch16.addConstraint(Sketcher.Constraint("DistanceY", 0, 3, -1, 1, Q("50 mm")))
pad16 = doc.addObject("PartDesign::Pad", "Pad015")
body16.addObject(pad16)
pad16.Profile = sketch16
pad16.Length = 42.7
body17 = doc.addObject("PartDesign::Body", "Body016")

# Sketch on XY plane
sketch17 = doc.addObject("Sketcher::SketchObject", "Sketch016")
body17.addObject(sketch17)
sketch17.AttachmentSupport = (doc.getObject("XY_Plane016"), [""])
sketch17.MapMode = "FlatFace"
sketch17.addGeometry(Part.Circle(Vector(50, 50, 0), Vector(0, 0, 1), 37.5), False)
sketch17.addConstraint(Sketcher.Constraint("Diameter", 0, Q("75 mm")))
sketch17.addConstraint(Sketcher.Constraint("DistanceX", -1, 1, 0, 3, Q("50 mm")))
sketch17.addConstraint(Sketcher.Constraint("DistanceY", -1, 1, 0, 3, Q("50 mm")))
pad17 = doc.addObject("PartDesign::Pad", "Pad016")
body17.addObject(pad17)
pad17.Profile = sketch17
pad17.Length = 42.7
body18 = doc.addObject("PartDesign::Body", "Body017")

# Sketch on XY plane
sketch18 = doc.addObject("Sketcher::SketchObject", "Sketch017")
body18.addObject(sketch18)
sketch18.AttachmentSupport = (doc.getObject("XY_Plane017"), [""])
sketch18.MapMode = "FlatFace"
sketch18.addGeometry(Part.Circle(Vector(50, -50, 0), Vector(0, 0, 1), 37.5), False)
sketch18.addConstraint(Sketcher.Constraint("Diameter", 0, Q("75 mm")))
sketch18.addConstraint(Sketcher.Constraint("DistanceX", -1, 1, 0, 3, Q("50 mm")))
sketch18.addConstraint(Sketcher.Constraint("DistanceY", 0, 3, -1, 1, Q("50 mm")))
pad18 = doc.addObject("PartDesign::Pad", "Pad017")
body18.addObject(pad18)
pad18.Profile = sketch18
pad18.Length = 42.7
body19 = doc.addObject("PartDesign::Body", "Body018")

# Sketch on XY plane
sketch19 = doc.addObject("Sketcher::SketchObject", "Sketch018")
body19.addObject(sketch19)
sketch19.AttachmentSupport = (doc.getObject("XY_Plane018"), [""])
sketch19.MapMode = "FlatFace"
sketch19.addGeometry(Part.LineSegment(Vector(-75, -110, 0), Vector(-75, -250, 0)), False)
sketch19.addGeometry(Part.LineSegment(Vector(-75, -250, 0), Vector(75, -250, 0)), False)
sketch19.addGeometry(Part.LineSegment(Vector(75, -250, 0), Vector(75, -110, 0)), False)
sketch19.addGeometry(Part.LineSegment(Vector(75, -110, 0), Vector(-75, -110, 0)), False)
sketch19.addConstraint(Sketcher.Constraint("Coincident", 0, 2, 1, 1))
sketch19.addConstraint(Sketcher.Constraint("Coincident", 1, 2, 2, 1))
sketch19.addConstraint(Sketcher.Constraint("Coincident", 2, 2, 3, 1))
sketch19.addConstraint(Sketcher.Constraint("Coincident", 3, 2, 0, 1))
sketch19.addConstraint(Sketcher.Constraint("Vertical", 0))
sketch19.addConstraint(Sketcher.Constraint("Horizontal", 1))
sketch19.addConstraint(Sketcher.Constraint("Vertical", 2))
sketch19.addConstraint(Sketcher.Constraint("Horizontal", 3))
sketch19.addConstraint(Sketcher.Constraint("DistanceX", 1, 1, 1, 2, Q("150 mm")))
sketch19.addConstraint(Sketcher.Constraint("DistanceY", 0, 2, 0, 1, Q("140 mm")))
sketch19.addConstraint(Sketcher.Constraint("DistanceX", 0, 2, -1, 1, Q("75 mm")))
sketch19.addConstraint(Sketcher.Constraint("DistanceY", 0, 2, -1, 1, Q("250 mm")))
pad19 = doc.addObject("PartDesign::Pad", "Pad018")
body19.addObject(pad19)
pad19.Profile = sketch19
pad19.Length = 42.7
body20 = doc.addObject("PartDesign::Body", "Body019")

# Sketch on YZ plane
sketch20 = doc.addObject("Sketcher::SketchObject", "Sketch019")
body20.addObject(sketch20)
sketch20.AttachmentSupport = (doc.getObject("YZ_Plane019"), [""])
sketch20.MapMode = "FlatFace"
sketch20.AttachmentOffset = App.Placement(Vector(0, 0, -159.268743), App.Rotation())
sketch20.addGeometry(Part.Circle(Vector(50, 25, 0), Vector(0, 0, 1), 3), False)
sketch20.addConstraint(Sketcher.Constraint("Diameter", 0, Q("6 mm")))
sketch20.addConstraint(Sketcher.Constraint("DistanceX", -1, 1, 0, 3, Q("50 mm")))
sketch20.addConstraint(Sketcher.Constraint("DistanceY", -1, 1, 0, 3, Q("25 mm")))

# Sketch on XY plane
sketch21 = doc.addObject("Sketcher::SketchObject", "Sketch020")
body20.addObject(sketch21)
sketch21.AttachmentSupport = (doc.getObject("XY_Plane019"), [""])
sketch21.MapMode = "FlatFace"
sketch21.AttachmentOffset = App.Placement(Vector(0, 0, 25), App.Rotation())
sketch21.addGeometry(Part.LineSegment(Vector(-159.268743, 50, 0), Vector(-154.268743, 50, 0)), False)
sketch21.addGeometry(Part.ArcOfCircle(Part.Circle(Vector(-154.268743, 40, 0), Vector(0, 0, 1), 10), math.radians(0), math.radians(90)), False)
sketch21.addGeometry(Part.LineSegment(Vector(-144.268743, 40, 0), Vector(-144.268743, -40, 0)), False)
sketch21.addGeometry(Part.ArcOfCircle(Part.Circle(Vector(-154.268743, -40, 0), Vector(0, 0, 1), 10), math.radians(-90), math.radians(0)), False)
sketch21.addGeometry(Part.LineSegment(Vector(-154.268743, -50, 0), Vector(-159.268743, -50, 0)), False)
sketch21.addConstraint(Sketcher.Constraint("Tangent", 0, 2, 1, 2))
sketch21.addConstraint(Sketcher.Constraint("Tangent", 1, 1, 2, 1))
sketch21.addConstraint(Sketcher.Constraint("Tangent", 2, 2, 3, 2))
sketch21.addConstraint(Sketcher.Constraint("Tangent", 3, 1, 4, 1))
sketch21.addConstraint(Sketcher.Constraint("Horizontal", 0))
sketch21.addConstraint(Sketcher.Constraint("Vertical", 2))
sketch21.addConstraint(Sketcher.Constraint("Horizontal", 4))
sketch21.addConstraint(Sketcher.Constraint("Equal", 1, 3))
sketch21.addConstraint(Sketcher.Constraint("Symmetric", 0, 1, 4, 2, -1))
sketch21.addConstraint(Sketcher.Constraint("Radius", 1, Q("10 mm")))
sketch21.addConstraint(Sketcher.Constraint("DistanceX", 0, 1, 0, 2, Q("5 mm")))
sketch21.addConstraint(Sketcher.Constraint("DistanceY", 2, 2, 2, 1, Q("80 mm")))
sketch21.addConstraint(Sketcher.Constraint("DistanceX", 1, 3, -1, 1, Q("154.268743 mm")))
doc.recompute()

additivepipe = doc.addObject("PartDesign::AdditivePipe", "AdditivePipe")
body20.addObject(additivepipe)
additivepipe.Profile = sketch20
additivepipe.Spine = (sketch21, ["Edge1", "Edge2", "Edge3", "Edge4", "Edge5"])
body21 = doc.addObject("PartDesign::Body", "Body020")

# Sketch on XY plane
sketch22 = doc.addObject("Sketcher::SketchObject", "Sketch021")
body21.addObject(sketch22)
sketch22.AttachmentSupport = (doc.getObject("XY_Plane020"), [""])
sketch22.MapMode = "FlatFace"
sketch22.AttachmentOffset = App.Placement(Vector(0, 0, 42), App.Rotation())
sketch22.addGeometry(Part.LineSegment(Vector(-477.775945, 120.100334, 0), Vector(-477.775945, -329.899666, 0)), False)
sketch22.addGeometry(Part.LineSegment(Vector(-477.775945, -329.899666, 0), Vector(122.224055, -329.899666, 0)), False)
sketch22.addGeometry(Part.LineSegment(Vector(122.224055, -329.899666, 0), Vector(122.224055, 120.100334, 0)), False)
sketch22.addGeometry(Part.LineSegment(Vector(122.224055, 120.100334, 0), Vector(-477.775945, 120.100334, 0)), False)
sketch22.addGeometry(Part.LineSegment(Vector(79.999998, -254.999998, 0), Vector(-79.999998, -254.999998, 0)), False)
sketch22.addGeometry(Part.LineSegment(Vector(-79.999998, -254.999998, 0), Vector(-79.999998, -105.000002, 0)), False)
sketch22.addGeometry(Part.LineSegment(Vector(-79.999998, -105.000002, 0), Vector(79.999998, -105.000002, 0)), False)
sketch22.addGeometry(Part.LineSegment(Vector(79.999998, -105.000002, 0), Vector(79.999998, -254.999998, 0)), False)
sketch22.addGeometry(Part.LineSegment(Vector(-315.246072, -92.5, 0), Vector(-440.731267, -92.5, 0)), False)
sketch22.addGeometry(Part.LineSegment(Vector(-440.731267, -92.5, 0), Vector(-440.731267, -7.5, 0)), False)
sketch22.addGeometry(Part.LineSegment(Vector(-440.731267, -7.5, 0), Vector(-315.246072, -7.5, 0)), False)
sketch22.addGeometry(Part.LineSegment(Vector(-315.246072, -7.5, 0), Vector(-315.246072, -92.5, 0)), False)
sketch22.addGeometry(Part.LineSegment(Vector(-159.268732, -92.500001, 0), Vector(-284.75393, -92.500001, 0)), False)
sketch22.addGeometry(Part.LineSegment(Vector(-284.75393, -92.500001, 0), Vector(-284.75393, -7.499999, 0)), False)
sketch22.addGeometry(Part.LineSegment(Vector(-284.75393, -7.499999, 0), Vector(-159.268732, -7.499999, 0)), False)
sketch22.addGeometry(Part.LineSegment(Vector(-159.268732, -7.499999, 0), Vector(-159.268732, -92.500001, 0)), False)
sketch22.addGeometry(Part.LineSegment(Vector(-315.246072, 7.5, 0), Vector(-440.731267, 7.5, 0)), False)
sketch22.addGeometry(Part.LineSegment(Vector(-440.731267, 7.5, 0), Vector(-440.731267, 92.5, 0)), False)
sketch22.addGeometry(Part.LineSegment(Vector(-440.731267, 92.5, 0), Vector(-315.246072, 92.5, 0)), False)
sketch22.addGeometry(Part.LineSegment(Vector(-315.246072, 92.5, 0), Vector(-315.246072, 7.5, 0)), False)
sketch22.addGeometry(Part.LineSegment(Vector(-159.268743, 7.50001, 0), Vector(-284.753919, 7.50001, 0)), False)
sketch22.addGeometry(Part.LineSegment(Vector(-284.753919, 7.50001, 0), Vector(-284.753919, 92.49999, 0)), False)
sketch22.addGeometry(Part.LineSegment(Vector(-284.753919, 92.49999, 0), Vector(-159.268743, 92.49999, 0)), False)
sketch22.addGeometry(Part.LineSegment(Vector(-159.268743, 92.49999, 0), Vector(-159.268743, 7.50001, 0)), False)
sketch22.addGeometry(Part.Circle(Vector(-50, -50, 0), Vector(0, 0, 1), 42.5), False)
sketch22.addGeometry(Part.Circle(Vector(50, -50, 0), Vector(0, 0, 1), 37.5), False)
sketch22.addGeometry(Part.Circle(Vector(-50, 50, 0), Vector(0, 0, 1), 42.5), False)
sketch22.addGeometry(Part.Circle(Vector(50, 50, 0), Vector(0, 0, 1), 37.5), False)
sketch22.addConstraint(Sketcher.Constraint("Coincident", 0, 2, 1, 1))
sketch22.addConstraint(Sketcher.Constraint("Coincident", 1, 2, 2, 1))
sketch22.addConstraint(Sketcher.Constraint("Coincident", 2, 2, 3, 1))
sketch22.addConstraint(Sketcher.Constraint("Coincident", 3, 2, 0, 1))
sketch22.addConstraint(Sketcher.Constraint("Coincident", 4, 2, 5, 1))
sketch22.addConstraint(Sketcher.Constraint("Coincident", 5, 2, 6, 1))
sketch22.addConstraint(Sketcher.Constraint("Coincident", 6, 2, 7, 1))
sketch22.addConstraint(Sketcher.Constraint("Coincident", 7, 2, 4, 1))
sketch22.addConstraint(Sketcher.Constraint("Coincident", 8, 2, 9, 1))
sketch22.addConstraint(Sketcher.Constraint("Coincident", 9, 2, 10, 1))
sketch22.addConstraint(Sketcher.Constraint("Coincident", 10, 2, 11, 1))
sketch22.addConstraint(Sketcher.Constraint("Coincident", 11, 2, 8, 1))
sketch22.addConstraint(Sketcher.Constraint("Coincident", 12, 2, 13, 1))
sketch22.addConstraint(Sketcher.Constraint("Coincident", 13, 2, 14, 1))
sketch22.addConstraint(Sketcher.Constraint("Coincident", 14, 2, 15, 1))
sketch22.addConstraint(Sketcher.Constraint("Coincident", 15, 2, 12, 1))
sketch22.addConstraint(Sketcher.Constraint("Coincident", 16, 2, 17, 1))
sketch22.addConstraint(Sketcher.Constraint("Coincident", 17, 2, 18, 1))
sketch22.addConstraint(Sketcher.Constraint("Coincident", 18, 2, 19, 1))
sketch22.addConstraint(Sketcher.Constraint("Coincident", 19, 2, 16, 1))
sketch22.addConstraint(Sketcher.Constraint("Coincident", 20, 2, 21, 1))
sketch22.addConstraint(Sketcher.Constraint("Coincident", 21, 2, 22, 1))
sketch22.addConstraint(Sketcher.Constraint("Coincident", 22, 2, 23, 1))
sketch22.addConstraint(Sketcher.Constraint("Coincident", 23, 2, 20, 1))
sketch22.addConstraint(Sketcher.Constraint("Vertical", 0))
sketch22.addConstraint(Sketcher.Constraint("Horizontal", 1))
sketch22.addConstraint(Sketcher.Constraint("Vertical", 2))
sketch22.addConstraint(Sketcher.Constraint("Horizontal", 3))
sketch22.addConstraint(Sketcher.Constraint("Horizontal", 4))
sketch22.addConstraint(Sketcher.Constraint("Vertical", 5))
sketch22.addConstraint(Sketcher.Constraint("Horizontal", 6))
sketch22.addConstraint(Sketcher.Constraint("Vertical", 7))
sketch22.addConstraint(Sketcher.Constraint("Horizontal", 8))
sketch22.addConstraint(Sketcher.Constraint("Vertical", 9))
sketch22.addConstraint(Sketcher.Constraint("Horizontal", 10))
sketch22.addConstraint(Sketcher.Constraint("Vertical", 11))
sketch22.addConstraint(Sketcher.Constraint("Horizontal", 12))
sketch22.addConstraint(Sketcher.Constraint("Vertical", 13))
sketch22.addConstraint(Sketcher.Constraint("Horizontal", 14))
sketch22.addConstraint(Sketcher.Constraint("Vertical", 15))
sketch22.addConstraint(Sketcher.Constraint("Horizontal", 16))
sketch22.addConstraint(Sketcher.Constraint("Vertical", 17))
sketch22.addConstraint(Sketcher.Constraint("Horizontal", 18))
sketch22.addConstraint(Sketcher.Constraint("Vertical", 19))
sketch22.addConstraint(Sketcher.Constraint("Horizontal", 20))
sketch22.addConstraint(Sketcher.Constraint("Vertical", 21))
sketch22.addConstraint(Sketcher.Constraint("Horizontal", 22))
sketch22.addConstraint(Sketcher.Constraint("Vertical", 23))
sketch22.addConstraint(Sketcher.Constraint("Equal", 24, 26))
sketch22.addConstraint(Sketcher.Constraint("Equal", 25, 27))
sketch22.addConstraint(Sketcher.Constraint("Symmetric", 25, 3, 26, 3, -1, 1))
sketch22.addConstraint(Sketcher.Constraint("Symmetric", 24, 3, 27, 3, -1, 1))
sketch22.addConstraint(Sketcher.Constraint("Symmetric", 24, 3, 25, 3, -2))
sketch22.addConstraint(Sketcher.Constraint("Symmetric", 9, 2, 16, 2, -1))
sketch22.addConstraint(Sketcher.Constraint("Symmetric", 11, 2, 18, 2, -1))
sketch22.addConstraint(Sketcher.Constraint("Horizontal", 11, 2, 12, 2))
sketch22.addConstraint(Sketcher.Constraint("Horizontal", 10, 2, 13, 2))
sketch22.addConstraint(Sketcher.Constraint("Diameter", 24, Q("85 mm")))
sketch22.addConstraint(Sketcher.Constraint("Diameter", 25, Q("75 mm")))
sketch22.addConstraint(Sketcher.Constraint("DistanceX", 1, 1, 1, 2, Q("600 mm")))
sketch22.addConstraint(Sketcher.Constraint("DistanceY", 0, 2, 0, 1, Q("450 mm")))
sketch22.addConstraint(Sketcher.Constraint("DistanceY", 9, 1, 9, 2, Q("85 mm")))
sketch22.addConstraint(Sketcher.Constraint("DistanceX", 24, 3, -1, 1, Q("50 mm")))
sketch22.addConstraint(Sketcher.Constraint("DistanceY", 24, 3, -1, 1, Q("50 mm")))
sketch22.addConstraint(Sketcher.Constraint("DistanceX", 4, 2, -1, 1, Q("79.999998 mm")))
sketch22.addConstraint(Sketcher.Constraint("DistanceY", 4, 2, -1, 1, Q("254.999998 mm")))
sketch22.addConstraint(Sketcher.Constraint("DistanceY", 5, 2, -1, 1, Q("105.000002 mm")))
sketch22.addConstraint(Sketcher.Constraint("DistanceX", -1, 1, 6, 2, Q("79.999998 mm")))
sketch22.addConstraint(Sketcher.Constraint("DistanceY", 9, 2, 16, 2, Q("15 mm")))
sketch22.addConstraint(Sketcher.Constraint("DistanceY", 21, 1, 21, 2, Q("84.999981 mm")))
sketch22.addConstraint(Sketcher.Constraint("DistanceX", 8, 2, 8, 1, Q("125.485195 mm")))
sketch22.addConstraint(Sketcher.Constraint("DistanceX", 12, 2, 12, 1, Q("125.485198 mm")))
sketch22.addConstraint(Sketcher.Constraint("DistanceX", 20, 2, 20, 1, Q("125.485176 mm")))
sketch22.addConstraint(Sketcher.Constraint("DistanceX", 10, 2, -1, 1, Q("315.246072 mm")))
sketch22.addConstraint(Sketcher.Constraint("DistanceX", 12, 2, -1, 1, Q("284.75393 mm")))
sketch22.addConstraint(Sketcher.Constraint("DistanceX", 20, 2, -1, 1, Q("284.753919 mm")))
sketch22.addConstraint(Sketcher.Constraint("DistanceY", -1, 1, 20, 2, Q("7.50001 mm")))
sketch22.addConstraint(Sketcher.Constraint("DistanceX", 0, 2, -1, 1, Q("477.775945 mm")))
sketch22.addConstraint(Sketcher.Constraint("DistanceY", 0, 2, -1, 1, Q("329.899666 mm")))
pad20 = doc.addObject("PartDesign::Pad", "Pad019")
body21.addObject(pad20)
pad20.Profile = sketch22
pad20.Length = 4

doc.recompute()
